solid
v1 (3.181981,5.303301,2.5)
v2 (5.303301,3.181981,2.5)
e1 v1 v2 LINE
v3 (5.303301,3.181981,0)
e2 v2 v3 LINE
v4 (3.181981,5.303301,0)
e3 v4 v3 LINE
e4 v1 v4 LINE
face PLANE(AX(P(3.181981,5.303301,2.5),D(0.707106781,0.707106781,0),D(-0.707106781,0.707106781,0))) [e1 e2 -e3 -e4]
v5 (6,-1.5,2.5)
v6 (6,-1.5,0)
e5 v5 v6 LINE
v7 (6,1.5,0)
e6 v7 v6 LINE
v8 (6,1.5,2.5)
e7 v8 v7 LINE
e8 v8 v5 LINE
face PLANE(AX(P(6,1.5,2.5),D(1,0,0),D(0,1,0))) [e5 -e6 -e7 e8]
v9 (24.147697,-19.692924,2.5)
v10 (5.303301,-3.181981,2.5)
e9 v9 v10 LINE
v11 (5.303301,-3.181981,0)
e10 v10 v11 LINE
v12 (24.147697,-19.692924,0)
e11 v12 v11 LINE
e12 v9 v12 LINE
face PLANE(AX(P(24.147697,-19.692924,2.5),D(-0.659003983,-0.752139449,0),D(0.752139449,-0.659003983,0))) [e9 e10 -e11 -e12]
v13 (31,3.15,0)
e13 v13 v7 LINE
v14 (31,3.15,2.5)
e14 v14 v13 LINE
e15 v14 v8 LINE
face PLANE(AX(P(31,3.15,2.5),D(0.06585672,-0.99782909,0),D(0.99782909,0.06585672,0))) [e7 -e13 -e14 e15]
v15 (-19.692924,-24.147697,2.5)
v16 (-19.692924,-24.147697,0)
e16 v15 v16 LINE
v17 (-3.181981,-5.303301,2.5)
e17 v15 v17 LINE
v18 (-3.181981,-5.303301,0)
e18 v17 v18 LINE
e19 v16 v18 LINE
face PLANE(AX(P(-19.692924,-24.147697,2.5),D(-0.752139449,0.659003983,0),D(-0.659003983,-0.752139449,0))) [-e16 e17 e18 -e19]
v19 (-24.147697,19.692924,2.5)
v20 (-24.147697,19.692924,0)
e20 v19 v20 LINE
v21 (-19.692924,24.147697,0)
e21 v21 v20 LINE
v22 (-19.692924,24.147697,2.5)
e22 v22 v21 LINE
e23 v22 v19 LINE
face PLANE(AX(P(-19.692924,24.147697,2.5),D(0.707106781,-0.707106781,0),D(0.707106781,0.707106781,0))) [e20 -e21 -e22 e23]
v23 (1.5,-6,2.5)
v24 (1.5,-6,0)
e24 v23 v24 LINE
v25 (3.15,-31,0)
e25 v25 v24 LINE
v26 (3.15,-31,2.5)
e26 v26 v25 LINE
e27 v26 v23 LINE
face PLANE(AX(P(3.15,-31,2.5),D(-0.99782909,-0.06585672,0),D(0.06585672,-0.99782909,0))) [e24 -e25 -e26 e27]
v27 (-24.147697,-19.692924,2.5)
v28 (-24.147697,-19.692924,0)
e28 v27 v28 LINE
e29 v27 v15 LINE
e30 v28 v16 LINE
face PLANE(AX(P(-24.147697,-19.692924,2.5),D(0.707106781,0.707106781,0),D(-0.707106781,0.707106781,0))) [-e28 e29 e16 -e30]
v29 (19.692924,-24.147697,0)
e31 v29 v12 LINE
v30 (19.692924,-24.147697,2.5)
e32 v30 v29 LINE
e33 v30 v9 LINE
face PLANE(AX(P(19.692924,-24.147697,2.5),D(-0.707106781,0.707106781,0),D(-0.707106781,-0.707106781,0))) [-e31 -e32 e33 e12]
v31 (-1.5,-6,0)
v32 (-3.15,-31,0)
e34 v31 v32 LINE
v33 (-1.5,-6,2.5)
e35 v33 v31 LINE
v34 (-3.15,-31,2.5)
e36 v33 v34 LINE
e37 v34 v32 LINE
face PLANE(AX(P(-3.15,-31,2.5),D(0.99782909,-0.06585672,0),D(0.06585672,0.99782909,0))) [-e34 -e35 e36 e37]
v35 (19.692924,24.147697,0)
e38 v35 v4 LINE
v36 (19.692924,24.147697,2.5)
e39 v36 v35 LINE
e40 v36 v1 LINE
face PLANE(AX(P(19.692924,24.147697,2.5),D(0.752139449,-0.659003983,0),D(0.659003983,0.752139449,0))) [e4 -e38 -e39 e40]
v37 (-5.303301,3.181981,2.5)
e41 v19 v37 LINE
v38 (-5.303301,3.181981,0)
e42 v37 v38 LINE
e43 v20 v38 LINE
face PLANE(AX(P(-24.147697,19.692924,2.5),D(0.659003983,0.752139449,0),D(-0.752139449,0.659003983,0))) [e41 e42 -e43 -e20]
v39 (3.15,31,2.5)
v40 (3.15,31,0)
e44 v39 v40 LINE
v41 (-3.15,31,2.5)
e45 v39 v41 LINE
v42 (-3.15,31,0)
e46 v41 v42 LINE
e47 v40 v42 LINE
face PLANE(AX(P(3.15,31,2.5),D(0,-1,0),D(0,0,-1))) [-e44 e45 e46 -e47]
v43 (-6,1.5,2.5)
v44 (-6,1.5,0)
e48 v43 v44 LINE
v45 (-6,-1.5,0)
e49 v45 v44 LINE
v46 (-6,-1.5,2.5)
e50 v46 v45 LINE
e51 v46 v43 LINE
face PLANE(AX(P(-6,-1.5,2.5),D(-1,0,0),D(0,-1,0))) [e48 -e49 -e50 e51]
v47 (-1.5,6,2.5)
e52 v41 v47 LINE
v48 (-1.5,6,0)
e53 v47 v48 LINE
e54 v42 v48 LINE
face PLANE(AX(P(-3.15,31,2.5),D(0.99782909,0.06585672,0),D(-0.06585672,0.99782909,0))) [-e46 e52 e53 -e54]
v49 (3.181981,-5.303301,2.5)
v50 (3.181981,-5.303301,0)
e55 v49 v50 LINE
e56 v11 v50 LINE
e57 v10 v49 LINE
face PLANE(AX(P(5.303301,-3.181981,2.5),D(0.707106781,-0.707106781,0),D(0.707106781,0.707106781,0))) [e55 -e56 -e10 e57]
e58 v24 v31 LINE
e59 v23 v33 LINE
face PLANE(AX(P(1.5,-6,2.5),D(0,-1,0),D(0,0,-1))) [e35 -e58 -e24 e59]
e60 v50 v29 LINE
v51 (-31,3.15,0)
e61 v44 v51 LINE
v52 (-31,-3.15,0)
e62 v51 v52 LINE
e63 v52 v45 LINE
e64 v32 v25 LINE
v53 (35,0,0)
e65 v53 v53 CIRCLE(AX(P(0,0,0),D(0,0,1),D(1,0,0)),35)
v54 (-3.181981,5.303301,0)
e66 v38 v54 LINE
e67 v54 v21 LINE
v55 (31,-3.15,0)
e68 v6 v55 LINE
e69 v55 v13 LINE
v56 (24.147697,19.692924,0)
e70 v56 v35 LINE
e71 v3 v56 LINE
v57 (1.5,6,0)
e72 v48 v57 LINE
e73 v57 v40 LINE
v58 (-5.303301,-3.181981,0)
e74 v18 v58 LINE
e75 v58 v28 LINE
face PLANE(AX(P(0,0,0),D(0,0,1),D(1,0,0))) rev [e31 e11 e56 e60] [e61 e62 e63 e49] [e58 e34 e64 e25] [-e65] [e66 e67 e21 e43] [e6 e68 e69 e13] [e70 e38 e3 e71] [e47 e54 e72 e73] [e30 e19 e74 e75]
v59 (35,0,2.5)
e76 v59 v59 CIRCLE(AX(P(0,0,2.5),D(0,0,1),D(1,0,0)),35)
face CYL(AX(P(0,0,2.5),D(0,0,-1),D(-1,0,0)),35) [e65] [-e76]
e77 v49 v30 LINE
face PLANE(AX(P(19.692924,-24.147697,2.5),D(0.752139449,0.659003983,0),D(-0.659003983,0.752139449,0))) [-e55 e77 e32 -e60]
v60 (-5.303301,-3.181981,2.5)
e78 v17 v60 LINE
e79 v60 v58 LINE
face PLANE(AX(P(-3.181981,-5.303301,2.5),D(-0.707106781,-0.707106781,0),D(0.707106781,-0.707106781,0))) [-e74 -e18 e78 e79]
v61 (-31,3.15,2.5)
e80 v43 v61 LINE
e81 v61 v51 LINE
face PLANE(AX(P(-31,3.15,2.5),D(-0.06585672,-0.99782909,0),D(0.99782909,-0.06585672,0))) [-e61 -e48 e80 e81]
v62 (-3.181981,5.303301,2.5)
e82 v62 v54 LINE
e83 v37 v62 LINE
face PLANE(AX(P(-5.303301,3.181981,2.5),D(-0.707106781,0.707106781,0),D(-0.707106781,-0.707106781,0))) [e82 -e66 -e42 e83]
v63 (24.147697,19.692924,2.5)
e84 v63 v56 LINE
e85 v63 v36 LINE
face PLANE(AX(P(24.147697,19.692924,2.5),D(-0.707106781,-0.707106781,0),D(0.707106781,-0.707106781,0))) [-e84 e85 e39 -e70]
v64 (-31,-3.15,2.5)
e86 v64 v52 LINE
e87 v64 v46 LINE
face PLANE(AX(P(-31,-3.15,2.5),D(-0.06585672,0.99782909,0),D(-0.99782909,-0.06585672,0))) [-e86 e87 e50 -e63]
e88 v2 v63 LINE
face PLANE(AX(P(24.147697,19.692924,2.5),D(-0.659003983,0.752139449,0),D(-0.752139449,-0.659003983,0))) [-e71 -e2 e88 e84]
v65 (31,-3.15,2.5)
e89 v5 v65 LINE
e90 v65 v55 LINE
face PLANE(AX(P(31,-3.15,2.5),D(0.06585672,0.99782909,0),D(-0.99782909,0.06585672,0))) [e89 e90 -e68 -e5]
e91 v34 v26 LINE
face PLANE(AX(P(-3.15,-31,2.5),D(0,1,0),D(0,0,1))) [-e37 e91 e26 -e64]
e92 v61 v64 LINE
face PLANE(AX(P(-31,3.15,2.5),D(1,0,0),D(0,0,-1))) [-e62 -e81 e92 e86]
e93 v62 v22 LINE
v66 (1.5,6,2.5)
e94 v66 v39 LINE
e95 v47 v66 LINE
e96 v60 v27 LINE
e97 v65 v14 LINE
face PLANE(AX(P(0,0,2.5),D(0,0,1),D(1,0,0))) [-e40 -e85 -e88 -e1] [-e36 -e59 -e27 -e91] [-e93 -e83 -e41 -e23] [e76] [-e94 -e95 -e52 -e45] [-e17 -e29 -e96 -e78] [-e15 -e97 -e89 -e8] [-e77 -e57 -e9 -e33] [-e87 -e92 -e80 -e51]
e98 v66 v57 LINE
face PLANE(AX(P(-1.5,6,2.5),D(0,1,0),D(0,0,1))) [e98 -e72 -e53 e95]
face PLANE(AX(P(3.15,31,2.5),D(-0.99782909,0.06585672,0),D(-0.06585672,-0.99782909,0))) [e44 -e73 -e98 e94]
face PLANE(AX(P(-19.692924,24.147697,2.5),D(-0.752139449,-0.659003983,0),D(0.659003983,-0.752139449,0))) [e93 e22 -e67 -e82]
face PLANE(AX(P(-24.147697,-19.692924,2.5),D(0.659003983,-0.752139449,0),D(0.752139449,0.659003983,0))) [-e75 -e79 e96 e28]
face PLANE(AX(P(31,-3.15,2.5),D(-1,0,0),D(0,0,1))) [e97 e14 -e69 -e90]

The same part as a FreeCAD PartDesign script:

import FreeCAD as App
import Part
import Sketcher
from FreeCAD import Vector
Q = App.Units.Quantity


def add_polygon(sketch, points):
    """Adds a closed chain of lines whose ends are joined by coincident constraints."""
    first, n = sketch.GeometryCount, len(points)
    for a, b in zip(points, points[1:] + points[:1]):
        sketch.addGeometry(Part.LineSegment(App.Vector(*a, 0), App.Vector(*b, 0)), False)
    for i in range(n):
        sketch.addConstraint(Sketcher.Constraint("Coincident", first + i, 2, first + (i + 1) % n, 1))

doc = App.newDocument("Part")
params = doc.addObject("Spreadsheet::Sheet", "Params")
for row, (alias, value) in enumerate([
    ("sketch1_diameter", "70 mm"),
    ("sketch1_width", "3 mm"),
    ("sketch1_length", "3 mm"),
    ("sketch1_width2", "6.3 mm"),
    ("sketch1_length2", "6.3 mm"),
    ("pad1_length", "2.5 mm"),
], start=1):
    params.set(f"A{row}", alias)
    params.set(f"B{row}", "=" + value)
    params.setAlias(f"B{row}", alias)

body = doc.addObject("PartDesign::Body", "Body")

# Sketch on XY plane
sketch1 = doc.addObject("Sketcher::SketchObject", "Sketch")
body.addObject(sketch1)
sketch1.AttachmentSupport = (doc.XY_Plane, [""])
sketch1.MapMode = "FlatFace"
sketch1.addGeometry(Part.Circle(Vector(0, 0, 0), Vector(0, 0, 1), 35), False)  # 0
add_polygon(sketch1, [(-3.2, -5.3), (-19.7, -24.1), (-24.1, -19.7), (-5.3, -3.2)])  # lines 1-4
add_polygon(sketch1, [(1.5, -6), (3.1, -31), (-3.1, -31), (-1.5, -6)])  # lines 5-8
add_polygon(sketch1, [(5.3, -3.2), (24.1, -19.7), (19.7, -24.1), (3.2, -5.3)])  # lines 9-12
add_polygon(sketch1, [(-6, -1.5), (-31, -3.1), (-31, 3.1), (-6, 1.5)])  # lines 13-16
add_polygon(sketch1, [(-5.3, 3.2), (-24.1, 19.7), (-19.7, 24.1), (-3.2, 5.3)])  # lines 17-20
add_polygon(sketch1, [(3.2, 5.3), (19.7, 24.1), (24.1, 19.7), (5.3, 3.2)])  # lines 21-24
add_polygon(sketch1, [(6, 1.5), (31, 3.1), (31, -3.1), (6, -1.5)])  # lines 25-28
add_polygon(sketch1, [(-3.1, 31), (3.1, 31), (1.5, 6), (-1.5, 6)])  # lines 29-32
sketch1.addConstraint([
    Sketcher.Constraint("Horizontal", 6),
    Sketcher.Constraint("Horizontal", 8),
    Sketcher.Constraint("Vertical", 14),
    Sketcher.Constraint("Vertical", 16),
    Sketcher.Constraint("Vertical", 26),
    Sketcher.Constraint("Vertical", 28),
    Sketcher.Constraint("Horizontal", 29),
    Sketcher.Constraint("Horizontal", 31),
    Sketcher.Constraint("Coincident", 0, 3, -1, 1),
    Sketcher.Constraint("Symmetric", 9, 2, 17, 2, -1, 1),
    Sketcher.Constraint("Symmetric", 10, 2, 18, 2, -1, 1),
    Sketcher.Constraint("Symmetric", 11, 2, 19, 2, -1, 1),
    Sketcher.Constraint("Symmetric", 12, 2, 20, 2, -1, 1),
    Sketcher.Constraint("Symmetric", 1, 2, 21, 2, -1, 1),
    Sketcher.Constraint("Symmetric", 2, 2, 22, 2, -1, 1),
    Sketcher.Constraint("Symmetric", 3, 2, 23, 2, -1, 1),
    Sketcher.Constraint("Symmetric", 4, 2, 24, 2, -1, 1),
    Sketcher.Constraint("Symmetric", 13, 2, 25, 2, -1, 1),
    Sketcher.Constraint("Symmetric", 15, 2, 27, 2, -1, 1),
    Sketcher.Constraint("Symmetric", 6, 2, 29, 2, -1, 1),
    Sketcher.Constraint("Symmetric", 7, 2, 30, 2, -1, 1),
    Sketcher.Constraint("Symmetric", 2, 2, 9, 2, -2),
    Sketcher.Constraint("Symmetric", 1, 2, 10, 2, -2),
    Sketcher.Constraint("Symmetric", 4, 2, 11, 2, -2),
    Sketcher.Constraint("Symmetric", 3, 2, 12, 2, -2),
    Sketcher.Constraint("Parallel", 2, 4),
    Sketcher.Constraint("Perpendicular", 1, 9),
    Sketcher.Constraint("Perpendicular", 4, 10),
    Sketcher.Constraint("Perpendicular", 5, 13),
    Sketcher.Constraint("Perpendicular", 7, 15),
    Sketcher.Constraint("Parallel", 13, 25),
    Sketcher.Constraint("Parallel", 15, 27),
    Sketcher.Constraint("Perpendicular", 25, 32),
    Sketcher.Constraint("Horizontal", 14, 2, 25, 2),
    Sketcher.Constraint("Horizontal", 16, 2, 27, 2),
    Sketcher.Constraint("Vertical", 5, 2, 29, 2),
    Sketcher.Constraint("Vertical", 7, 2, 31, 2),
    Sketcher.Constraint("Equal", 29, 14),
    Sketcher.Constraint("Equal", 31, 16),
    Sketcher.Constraint("Equal", 3, 5),
    Sketcher.Constraint("Diameter", 0, Q("70 mm")),
    Sketcher.Constraint("DistanceX", 8, 1, 8, 2, Q("3 mm")),
    Sketcher.Constraint("Distance", 4, Q("3 mm")),
    Sketcher.Constraint("DistanceX", 6, 2, 6, 1, Q("6.3 mm")),
    Sketcher.Constraint("DistanceY", 5, 2, -1, 1, Q("31 mm")),
    Sketcher.Constraint("DistanceY", 7, 2, -1, 1, Q("6 mm")),
    Sketcher.Constraint("DistanceX", 13, 2, -1, 1, Q("31 mm")),
    Sketcher.Constraint("Distance", 2, Q("6.3 mm")),
    Sketcher.Constraint("DistanceX", 3, 2, -1, 1, Q("5.303301 mm")),
    Sketcher.Constraint("DistanceY", 4, 2, -1, 1, Q("5.303301 mm")),
])
sketch1.setExpression("Constraints[72]", "Params.sketch1_diameter")
sketch1.setExpression("Constraints[73]", "Params.sketch1_width")
sketch1.setExpression("Constraints[74]", "Params.sketch1_length")
sketch1.setExpression("Constraints[75]", "Params.sketch1_width2")
sketch1.setExpression("Constraints[79]", "Params.sketch1_length2")
pad1 = doc.addObject("PartDesign::Pad", "Pad")
body.addObject(pad1)
pad1.Profile = sketch1
pad1.setExpression("Length", "Params.pad1_length")

doc.recompute()
